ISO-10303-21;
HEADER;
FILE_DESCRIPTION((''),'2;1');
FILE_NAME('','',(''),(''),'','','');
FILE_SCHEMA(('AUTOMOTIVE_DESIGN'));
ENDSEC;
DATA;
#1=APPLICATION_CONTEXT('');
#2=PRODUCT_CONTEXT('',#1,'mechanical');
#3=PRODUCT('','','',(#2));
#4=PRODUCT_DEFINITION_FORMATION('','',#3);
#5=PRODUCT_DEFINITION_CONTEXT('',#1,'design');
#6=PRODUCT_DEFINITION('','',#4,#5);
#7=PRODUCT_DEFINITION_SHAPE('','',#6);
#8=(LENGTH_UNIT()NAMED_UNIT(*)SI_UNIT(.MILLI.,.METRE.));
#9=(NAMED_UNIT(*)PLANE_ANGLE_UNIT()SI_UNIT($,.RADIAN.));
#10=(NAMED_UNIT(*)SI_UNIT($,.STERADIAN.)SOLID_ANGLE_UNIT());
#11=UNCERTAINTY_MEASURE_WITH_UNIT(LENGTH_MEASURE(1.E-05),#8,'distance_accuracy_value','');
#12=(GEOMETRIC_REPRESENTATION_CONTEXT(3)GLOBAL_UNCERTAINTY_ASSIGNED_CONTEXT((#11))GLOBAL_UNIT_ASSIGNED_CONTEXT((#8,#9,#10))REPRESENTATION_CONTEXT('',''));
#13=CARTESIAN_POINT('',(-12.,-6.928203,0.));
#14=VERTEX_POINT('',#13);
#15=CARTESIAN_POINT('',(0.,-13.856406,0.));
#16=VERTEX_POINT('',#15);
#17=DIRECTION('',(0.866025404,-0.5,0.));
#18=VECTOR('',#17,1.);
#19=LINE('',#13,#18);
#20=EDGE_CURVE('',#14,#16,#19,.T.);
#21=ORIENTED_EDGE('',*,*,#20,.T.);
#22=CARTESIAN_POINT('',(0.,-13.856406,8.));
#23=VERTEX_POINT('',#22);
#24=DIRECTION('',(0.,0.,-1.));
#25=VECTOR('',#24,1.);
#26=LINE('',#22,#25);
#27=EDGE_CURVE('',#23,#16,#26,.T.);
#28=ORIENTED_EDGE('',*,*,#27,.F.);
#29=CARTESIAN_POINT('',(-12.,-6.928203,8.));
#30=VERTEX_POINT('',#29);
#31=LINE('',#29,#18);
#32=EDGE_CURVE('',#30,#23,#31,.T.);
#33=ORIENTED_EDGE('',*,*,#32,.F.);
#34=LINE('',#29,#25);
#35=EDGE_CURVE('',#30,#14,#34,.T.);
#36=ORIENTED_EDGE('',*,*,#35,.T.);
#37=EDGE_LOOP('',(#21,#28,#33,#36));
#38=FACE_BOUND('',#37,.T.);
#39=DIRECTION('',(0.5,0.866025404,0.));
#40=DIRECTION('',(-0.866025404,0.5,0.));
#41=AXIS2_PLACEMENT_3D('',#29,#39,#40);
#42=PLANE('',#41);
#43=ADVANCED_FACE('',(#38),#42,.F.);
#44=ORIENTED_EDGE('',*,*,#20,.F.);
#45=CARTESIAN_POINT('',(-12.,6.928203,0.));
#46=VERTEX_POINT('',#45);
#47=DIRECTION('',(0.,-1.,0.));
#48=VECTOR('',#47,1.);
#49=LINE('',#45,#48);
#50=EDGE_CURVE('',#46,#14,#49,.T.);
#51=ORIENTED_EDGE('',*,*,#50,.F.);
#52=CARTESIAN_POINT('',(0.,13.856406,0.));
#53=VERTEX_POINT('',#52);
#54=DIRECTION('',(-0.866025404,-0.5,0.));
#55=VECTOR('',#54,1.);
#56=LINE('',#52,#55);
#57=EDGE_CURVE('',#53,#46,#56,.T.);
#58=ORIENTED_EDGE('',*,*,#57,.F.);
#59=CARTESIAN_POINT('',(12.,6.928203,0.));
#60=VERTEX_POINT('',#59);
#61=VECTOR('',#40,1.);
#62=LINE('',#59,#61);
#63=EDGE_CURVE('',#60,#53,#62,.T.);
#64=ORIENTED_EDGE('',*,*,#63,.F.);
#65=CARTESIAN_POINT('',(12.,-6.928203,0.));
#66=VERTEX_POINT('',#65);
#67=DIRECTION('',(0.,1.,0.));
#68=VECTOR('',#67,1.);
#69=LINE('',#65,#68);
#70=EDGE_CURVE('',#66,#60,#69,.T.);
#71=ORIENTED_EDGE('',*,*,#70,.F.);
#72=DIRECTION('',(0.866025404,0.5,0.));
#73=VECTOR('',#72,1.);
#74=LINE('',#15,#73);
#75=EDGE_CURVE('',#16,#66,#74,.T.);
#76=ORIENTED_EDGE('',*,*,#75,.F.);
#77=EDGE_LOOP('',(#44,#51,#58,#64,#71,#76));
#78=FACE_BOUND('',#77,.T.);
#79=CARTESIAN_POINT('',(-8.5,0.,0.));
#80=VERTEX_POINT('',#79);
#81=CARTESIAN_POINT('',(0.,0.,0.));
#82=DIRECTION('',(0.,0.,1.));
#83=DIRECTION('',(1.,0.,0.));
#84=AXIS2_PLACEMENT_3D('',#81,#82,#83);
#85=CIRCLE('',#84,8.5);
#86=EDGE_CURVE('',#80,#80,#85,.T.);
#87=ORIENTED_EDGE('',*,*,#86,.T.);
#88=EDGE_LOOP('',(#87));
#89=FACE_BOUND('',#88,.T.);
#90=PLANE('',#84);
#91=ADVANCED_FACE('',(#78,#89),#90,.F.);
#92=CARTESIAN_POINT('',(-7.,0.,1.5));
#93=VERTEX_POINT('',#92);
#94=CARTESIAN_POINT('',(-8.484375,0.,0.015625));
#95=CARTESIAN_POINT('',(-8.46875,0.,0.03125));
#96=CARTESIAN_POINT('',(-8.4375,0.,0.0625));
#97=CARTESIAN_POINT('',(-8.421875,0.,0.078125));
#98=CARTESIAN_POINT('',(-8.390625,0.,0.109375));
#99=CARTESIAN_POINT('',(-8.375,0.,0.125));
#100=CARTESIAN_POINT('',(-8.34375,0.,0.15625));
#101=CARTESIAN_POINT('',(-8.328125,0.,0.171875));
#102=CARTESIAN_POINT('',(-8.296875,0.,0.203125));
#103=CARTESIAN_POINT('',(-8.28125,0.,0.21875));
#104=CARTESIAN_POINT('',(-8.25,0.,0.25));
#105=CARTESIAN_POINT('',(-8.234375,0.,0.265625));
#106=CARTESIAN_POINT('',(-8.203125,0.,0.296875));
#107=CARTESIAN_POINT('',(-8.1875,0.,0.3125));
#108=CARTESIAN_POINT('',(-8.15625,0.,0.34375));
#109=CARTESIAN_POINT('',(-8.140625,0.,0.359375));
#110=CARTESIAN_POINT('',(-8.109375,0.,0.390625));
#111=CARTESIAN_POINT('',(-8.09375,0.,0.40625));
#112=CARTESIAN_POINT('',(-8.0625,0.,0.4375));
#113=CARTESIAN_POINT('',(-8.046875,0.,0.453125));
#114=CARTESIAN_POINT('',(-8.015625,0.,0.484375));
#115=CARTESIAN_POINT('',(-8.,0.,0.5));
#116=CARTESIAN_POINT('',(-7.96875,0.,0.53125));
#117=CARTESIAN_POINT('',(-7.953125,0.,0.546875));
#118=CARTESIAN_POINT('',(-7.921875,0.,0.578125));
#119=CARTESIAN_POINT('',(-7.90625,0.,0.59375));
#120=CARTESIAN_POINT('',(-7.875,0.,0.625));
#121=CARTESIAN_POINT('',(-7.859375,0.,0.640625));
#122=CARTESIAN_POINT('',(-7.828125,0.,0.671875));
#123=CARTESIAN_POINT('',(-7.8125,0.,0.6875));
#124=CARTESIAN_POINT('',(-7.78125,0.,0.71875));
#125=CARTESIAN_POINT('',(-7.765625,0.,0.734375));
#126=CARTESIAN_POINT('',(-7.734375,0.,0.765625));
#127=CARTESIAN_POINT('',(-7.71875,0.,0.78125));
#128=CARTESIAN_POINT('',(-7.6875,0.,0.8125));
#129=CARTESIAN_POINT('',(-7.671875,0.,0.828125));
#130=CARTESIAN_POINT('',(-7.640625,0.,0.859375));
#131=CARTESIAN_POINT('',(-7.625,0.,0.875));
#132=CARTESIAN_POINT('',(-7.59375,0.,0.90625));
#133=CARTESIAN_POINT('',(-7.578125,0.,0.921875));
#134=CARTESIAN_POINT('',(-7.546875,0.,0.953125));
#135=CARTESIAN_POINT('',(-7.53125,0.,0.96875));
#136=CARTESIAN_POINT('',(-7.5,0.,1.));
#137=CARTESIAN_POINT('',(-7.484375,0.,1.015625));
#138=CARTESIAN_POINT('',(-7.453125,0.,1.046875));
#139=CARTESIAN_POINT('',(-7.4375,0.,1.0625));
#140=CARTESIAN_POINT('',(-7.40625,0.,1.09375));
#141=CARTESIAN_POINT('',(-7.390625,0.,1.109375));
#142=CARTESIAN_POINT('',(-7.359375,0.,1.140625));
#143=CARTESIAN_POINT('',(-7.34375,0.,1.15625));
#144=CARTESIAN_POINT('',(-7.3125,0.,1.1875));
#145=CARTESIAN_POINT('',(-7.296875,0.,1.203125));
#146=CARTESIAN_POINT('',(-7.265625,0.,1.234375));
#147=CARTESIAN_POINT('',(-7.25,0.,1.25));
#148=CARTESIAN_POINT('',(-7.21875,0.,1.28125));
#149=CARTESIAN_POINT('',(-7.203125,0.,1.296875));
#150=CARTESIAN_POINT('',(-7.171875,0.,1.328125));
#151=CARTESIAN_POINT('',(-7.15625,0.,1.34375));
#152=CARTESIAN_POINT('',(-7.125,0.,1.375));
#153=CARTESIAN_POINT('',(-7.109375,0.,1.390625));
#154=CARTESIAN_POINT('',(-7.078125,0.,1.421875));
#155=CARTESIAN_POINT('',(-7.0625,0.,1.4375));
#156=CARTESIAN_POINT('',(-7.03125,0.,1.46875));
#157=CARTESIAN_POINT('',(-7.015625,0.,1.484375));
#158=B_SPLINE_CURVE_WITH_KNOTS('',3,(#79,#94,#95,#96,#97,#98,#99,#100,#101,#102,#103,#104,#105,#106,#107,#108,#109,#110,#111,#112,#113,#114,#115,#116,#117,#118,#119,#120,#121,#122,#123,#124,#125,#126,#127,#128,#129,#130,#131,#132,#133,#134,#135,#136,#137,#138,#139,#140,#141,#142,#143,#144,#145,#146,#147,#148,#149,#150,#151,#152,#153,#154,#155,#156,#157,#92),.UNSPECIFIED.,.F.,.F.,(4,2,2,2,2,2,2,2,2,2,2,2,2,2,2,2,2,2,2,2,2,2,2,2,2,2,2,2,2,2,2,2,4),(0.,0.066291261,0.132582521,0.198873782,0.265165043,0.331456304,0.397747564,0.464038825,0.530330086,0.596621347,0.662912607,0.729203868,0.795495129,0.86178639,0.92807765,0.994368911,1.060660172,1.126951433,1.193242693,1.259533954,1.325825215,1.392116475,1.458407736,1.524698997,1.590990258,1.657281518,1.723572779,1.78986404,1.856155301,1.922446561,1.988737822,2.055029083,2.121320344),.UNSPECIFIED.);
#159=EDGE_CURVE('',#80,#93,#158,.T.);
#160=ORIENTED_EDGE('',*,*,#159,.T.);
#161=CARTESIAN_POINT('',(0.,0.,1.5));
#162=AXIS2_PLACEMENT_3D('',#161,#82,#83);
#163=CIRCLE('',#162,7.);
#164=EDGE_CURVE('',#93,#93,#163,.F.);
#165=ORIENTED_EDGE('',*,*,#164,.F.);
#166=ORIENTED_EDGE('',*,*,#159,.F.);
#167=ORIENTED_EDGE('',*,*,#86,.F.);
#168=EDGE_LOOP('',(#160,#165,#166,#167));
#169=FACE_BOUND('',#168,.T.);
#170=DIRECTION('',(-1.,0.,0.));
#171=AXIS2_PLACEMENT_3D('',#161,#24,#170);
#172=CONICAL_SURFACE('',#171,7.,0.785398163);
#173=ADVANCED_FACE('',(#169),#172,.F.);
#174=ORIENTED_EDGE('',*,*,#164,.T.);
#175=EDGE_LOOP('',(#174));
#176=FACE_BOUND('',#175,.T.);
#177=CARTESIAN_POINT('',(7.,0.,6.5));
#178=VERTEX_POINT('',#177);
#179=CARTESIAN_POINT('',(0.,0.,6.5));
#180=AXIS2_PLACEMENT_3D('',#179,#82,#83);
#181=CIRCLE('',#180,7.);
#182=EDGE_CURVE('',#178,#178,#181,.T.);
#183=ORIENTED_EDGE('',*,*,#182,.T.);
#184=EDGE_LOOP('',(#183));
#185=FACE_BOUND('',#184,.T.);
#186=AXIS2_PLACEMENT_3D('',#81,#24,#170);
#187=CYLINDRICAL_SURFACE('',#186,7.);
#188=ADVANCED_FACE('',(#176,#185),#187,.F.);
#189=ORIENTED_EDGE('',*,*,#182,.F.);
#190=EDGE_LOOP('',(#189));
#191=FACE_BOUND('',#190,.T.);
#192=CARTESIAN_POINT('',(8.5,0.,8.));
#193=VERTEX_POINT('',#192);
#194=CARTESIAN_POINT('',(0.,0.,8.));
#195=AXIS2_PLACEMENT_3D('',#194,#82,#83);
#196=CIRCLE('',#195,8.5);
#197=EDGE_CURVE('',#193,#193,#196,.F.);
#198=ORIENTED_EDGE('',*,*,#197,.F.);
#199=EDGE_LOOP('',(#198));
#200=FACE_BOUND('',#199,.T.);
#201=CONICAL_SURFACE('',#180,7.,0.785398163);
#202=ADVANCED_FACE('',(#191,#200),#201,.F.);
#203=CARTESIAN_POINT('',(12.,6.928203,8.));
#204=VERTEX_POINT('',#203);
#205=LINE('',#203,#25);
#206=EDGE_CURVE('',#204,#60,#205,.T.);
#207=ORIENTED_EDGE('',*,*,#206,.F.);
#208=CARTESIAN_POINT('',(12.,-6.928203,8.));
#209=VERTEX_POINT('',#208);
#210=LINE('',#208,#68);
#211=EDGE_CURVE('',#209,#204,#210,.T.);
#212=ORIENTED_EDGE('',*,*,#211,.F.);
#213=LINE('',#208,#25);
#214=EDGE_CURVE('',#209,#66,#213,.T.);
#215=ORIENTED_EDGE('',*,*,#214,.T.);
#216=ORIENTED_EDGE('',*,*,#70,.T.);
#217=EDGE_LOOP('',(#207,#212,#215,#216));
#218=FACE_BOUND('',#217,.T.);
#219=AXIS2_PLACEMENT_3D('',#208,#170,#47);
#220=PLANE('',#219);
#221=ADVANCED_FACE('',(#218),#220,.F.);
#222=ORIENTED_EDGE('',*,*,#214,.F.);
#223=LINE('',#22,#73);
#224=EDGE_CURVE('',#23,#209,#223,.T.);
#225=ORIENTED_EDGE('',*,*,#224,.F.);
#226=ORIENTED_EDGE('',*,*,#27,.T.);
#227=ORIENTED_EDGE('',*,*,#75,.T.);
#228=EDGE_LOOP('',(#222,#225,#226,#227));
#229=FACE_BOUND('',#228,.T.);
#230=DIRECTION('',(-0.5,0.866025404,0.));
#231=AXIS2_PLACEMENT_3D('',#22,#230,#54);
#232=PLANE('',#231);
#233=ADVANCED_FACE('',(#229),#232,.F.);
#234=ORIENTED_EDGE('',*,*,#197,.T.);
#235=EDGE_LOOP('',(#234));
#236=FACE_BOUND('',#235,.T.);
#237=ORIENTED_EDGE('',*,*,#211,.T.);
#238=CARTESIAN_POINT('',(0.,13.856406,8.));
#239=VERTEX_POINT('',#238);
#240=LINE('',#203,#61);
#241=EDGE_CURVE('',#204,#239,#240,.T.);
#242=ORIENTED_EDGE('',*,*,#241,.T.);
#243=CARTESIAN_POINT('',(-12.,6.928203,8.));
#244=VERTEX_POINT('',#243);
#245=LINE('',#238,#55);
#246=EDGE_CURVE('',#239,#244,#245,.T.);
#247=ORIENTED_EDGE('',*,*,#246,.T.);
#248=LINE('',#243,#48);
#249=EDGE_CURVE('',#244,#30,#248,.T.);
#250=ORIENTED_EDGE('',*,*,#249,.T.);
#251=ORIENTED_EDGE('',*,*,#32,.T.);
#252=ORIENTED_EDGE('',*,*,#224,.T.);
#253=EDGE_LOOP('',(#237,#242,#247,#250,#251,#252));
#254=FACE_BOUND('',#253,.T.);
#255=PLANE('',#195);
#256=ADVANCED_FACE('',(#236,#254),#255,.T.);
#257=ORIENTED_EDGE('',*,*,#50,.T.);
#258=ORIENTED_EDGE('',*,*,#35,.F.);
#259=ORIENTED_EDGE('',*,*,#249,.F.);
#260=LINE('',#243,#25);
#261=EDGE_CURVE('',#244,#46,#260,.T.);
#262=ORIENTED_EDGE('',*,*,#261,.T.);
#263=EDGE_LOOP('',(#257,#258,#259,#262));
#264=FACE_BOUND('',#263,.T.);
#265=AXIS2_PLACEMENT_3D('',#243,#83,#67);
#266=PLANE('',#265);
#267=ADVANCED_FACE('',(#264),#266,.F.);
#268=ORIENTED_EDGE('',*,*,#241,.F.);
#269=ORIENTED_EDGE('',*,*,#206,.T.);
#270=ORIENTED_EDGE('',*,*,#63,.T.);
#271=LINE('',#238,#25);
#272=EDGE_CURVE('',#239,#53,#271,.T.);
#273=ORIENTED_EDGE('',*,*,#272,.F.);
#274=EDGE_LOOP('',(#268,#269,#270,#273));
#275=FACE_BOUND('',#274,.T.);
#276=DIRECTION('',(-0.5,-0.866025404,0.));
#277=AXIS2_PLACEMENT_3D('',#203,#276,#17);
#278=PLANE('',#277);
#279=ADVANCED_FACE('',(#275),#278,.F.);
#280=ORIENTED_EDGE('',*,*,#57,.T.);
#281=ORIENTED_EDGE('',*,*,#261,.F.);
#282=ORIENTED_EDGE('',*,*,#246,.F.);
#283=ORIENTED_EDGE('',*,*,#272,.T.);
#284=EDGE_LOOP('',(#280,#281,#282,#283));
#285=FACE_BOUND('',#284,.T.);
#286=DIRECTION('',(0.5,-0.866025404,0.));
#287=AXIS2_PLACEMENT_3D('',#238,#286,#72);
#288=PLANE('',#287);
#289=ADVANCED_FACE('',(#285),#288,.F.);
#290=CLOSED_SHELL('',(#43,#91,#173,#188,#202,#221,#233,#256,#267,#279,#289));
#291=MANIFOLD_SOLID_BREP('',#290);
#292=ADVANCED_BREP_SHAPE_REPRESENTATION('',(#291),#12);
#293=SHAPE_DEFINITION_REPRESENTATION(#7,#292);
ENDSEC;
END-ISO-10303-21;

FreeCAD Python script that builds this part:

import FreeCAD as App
import Part
import Sketcher

V = App.Vector
Q = App.Units.Quantity


def edges_at(feature, points):
    """Names of the edges that pass closest to the given points."""
    edges = feature.Shape.Edges
    near = lambda p: min(range(len(edges)), key=lambda i: edges[i].distToShape(Part.Vertex(*p))[0])
    return sorted({f"Edge{near(p) + 1}" for p in points})

doc = App.newDocument("Part")
params = doc.addObject("Spreadsheet::Sheet", "Params")
for row, (alias, value) in enumerate([
    ("pad1_length", "8 mm"),
    ("sketch2_diameter", "14 mm"),
    ("hole_diameter", "14 mm"),
    ("chamfer_size", "1.5 mm"),
], start=1):
    params.set(f"A{row}", alias)
    params.set(f"B{row}", "=" + value)
    params.setAlias(f"B{row}", alias)

body = doc.addObject("PartDesign::Body", "Body")

sketch1 = body.newObject("Sketcher::SketchObject", "Sketch")
sketch1.AttachmentSupport = (doc.getObject("XY_Plane"), [""])
sketch1.MapMode = "FlatFace"
sketch1.addGeometry(Part.LineSegment(V(0, 13.856406, 0), V(-12, 6.928203, 0)), False)
sketch1.addGeometry(Part.LineSegment(V(-12, 6.928203, 0), V(-12, -6.928203, 0)), False)
sketch1.addGeometry(Part.LineSegment(V(-12, -6.928203, 0), V(0, -13.856406, 0)), False)
sketch1.addGeometry(Part.LineSegment(V(0, -13.856406, 0), V(12, -6.928203, 0)), False)
sketch1.addGeometry(Part.LineSegment(V(12, -6.928203, 0), V(12, 6.928203, 0)), False)
sketch1.addGeometry(Part.LineSegment(V(12, 6.928203, 0), V(0, 13.856406, 0)), False)
sketch1.addConstraint(Sketcher.Constraint("Coincident", 0, 2, 1, 1))
sketch1.addConstraint(Sketcher.Constraint("Coincident", 1, 2, 2, 1))
sketch1.addConstraint(Sketcher.Constraint("Coincident", 2, 2, 3, 1))
sketch1.addConstraint(Sketcher.Constraint("Coincident", 3, 2, 4, 1))
sketch1.addConstraint(Sketcher.Constraint("Coincident", 4, 2, 5, 1))
sketch1.addConstraint(Sketcher.Constraint("Coincident", 5, 2, 0, 1))
sketch1.addConstraint(Sketcher.Constraint("Vertical", 1))
sketch1.addConstraint(Sketcher.Constraint("Vertical", 4))
sketch1.addConstraint(Sketcher.Constraint("Symmetric", 0, 2, 3, 2, -1, 1))
sketch1.addConstraint(Sketcher.Constraint("Symmetric", 2, 2, 5, 2, -1, 1))
sketch1.addConstraint(Sketcher.Constraint("PointOnObject", 2, 2, -2))
sketch1.addConstraint(Sketcher.Constraint("Parallel", 2, 5))
sketch1.addConstraint(Sketcher.Constraint("Horizontal", 1, 2, 3, 2))
sketch1.addConstraint(Sketcher.Constraint("Angle", 0, Q("-150 deg")))
sketch1.addConstraint(Sketcher.Constraint("DistanceX", 0, 2, -1, 1, Q("12 mm")))
sketch1.addConstraint(Sketcher.Constraint("DistanceY", 1, 2, 1, 1, Q("13.856406 mm")))
pad1 = body.newObject("PartDesign::Pad", "Pad")
pad1.Profile = sketch1
pad1.setExpression("Length", "Params.pad1_length")

sketch2 = body.newObject("Sketcher::SketchObject", "Sketch001")
sketch2.AttachmentSupport = (doc.getObject("XY_Plane"), [""])
sketch2.MapMode = "FlatFace"
sketch2.addGeometry(Part.Circle(V(0, 0, 0), V(0, 0, 1), 7), False)
sketch2.addConstraint(Sketcher.Constraint("Coincident", 0, 3, -1, 1))
sketch2.addConstraint(Sketcher.Constraint("Diameter", 0, Q("14 mm")))
sketch2.setExpression("Constraints[1]", "Params.sketch2_diameter")
doc.recompute()
hole = body.newObject("PartDesign::Hole", "Hole")
hole.Profile = sketch2
hole.ThreadType = "None"
hole.setExpression("Diameter", "Params.hole_diameter")
hole.DepthType = "ThroughAll"
hole.Reversed = True
doc.recompute()

chamfer = body.newObject("PartDesign::Chamfer", "Chamfer")
chamfer.Base = (hole, edges_at(hole, [(-7, 0, 0), (-7, 0, 8)]))
chamfer.setExpression("Size", "Params.chamfer_size")

doc.recompute()
